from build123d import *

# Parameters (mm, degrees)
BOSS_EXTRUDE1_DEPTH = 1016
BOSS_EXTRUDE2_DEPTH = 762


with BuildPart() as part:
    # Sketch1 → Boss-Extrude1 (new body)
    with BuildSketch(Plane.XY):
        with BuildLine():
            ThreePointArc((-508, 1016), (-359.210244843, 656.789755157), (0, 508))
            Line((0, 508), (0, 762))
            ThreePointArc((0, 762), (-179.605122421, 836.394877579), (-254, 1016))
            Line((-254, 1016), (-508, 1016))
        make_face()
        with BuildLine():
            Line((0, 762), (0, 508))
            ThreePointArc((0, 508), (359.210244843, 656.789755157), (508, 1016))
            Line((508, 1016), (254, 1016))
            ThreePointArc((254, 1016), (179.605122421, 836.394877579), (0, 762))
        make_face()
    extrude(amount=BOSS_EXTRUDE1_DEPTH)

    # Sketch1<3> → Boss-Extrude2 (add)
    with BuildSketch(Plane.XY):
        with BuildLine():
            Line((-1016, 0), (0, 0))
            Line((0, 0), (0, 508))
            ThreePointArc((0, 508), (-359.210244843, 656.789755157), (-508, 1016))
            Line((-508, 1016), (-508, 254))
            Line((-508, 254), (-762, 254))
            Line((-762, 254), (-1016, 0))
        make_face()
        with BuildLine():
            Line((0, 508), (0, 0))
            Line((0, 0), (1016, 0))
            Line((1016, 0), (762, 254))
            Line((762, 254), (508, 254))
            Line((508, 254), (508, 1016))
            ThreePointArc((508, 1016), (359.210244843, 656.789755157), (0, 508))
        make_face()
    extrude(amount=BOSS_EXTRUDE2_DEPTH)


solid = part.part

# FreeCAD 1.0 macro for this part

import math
import FreeCAD as App
import Part
import Sketcher
from FreeCAD import Vector
Q = App.Units.Quantity

doc = App.newDocument("Part")
body = doc.addObject("PartDesign::Body", "Body")

# Sketch on XY plane
sketch1 = body.newObject("Sketcher::SketchObject", "Sketch")
sketch1.AttachmentSupport = (doc.getObject("XY_Plane"), [""])
sketch1.MapMode = "FlatFace"
sketch1.addGeometry(Part.ArcOfCircle(Part.Circle(Vector(0, 1016, 0), Vector(0, 0, 1), 508), math.radians(180), math.radians(270)), False)
sketch1.addGeometry(Part.ArcOfCircle(Part.Circle(Vector(0, 1016, 0), Vector(0, 0, 1), 508), math.radians(-90), math.radians(0)), False)
sketch1.addGeometry(Part.LineSegment(Vector(508, 1016, 0), Vector(254, 1016, 0)), False)
sketch1.addGeometry(Part.ArcOfCircle(Part.Circle(Vector(0, 1016, 0), Vector(0, 0, 1), 254), math.radians(-90), math.radians(0)), False)
sketch1.addGeometry(Part.ArcOfCircle(Part.Circle(Vector(0, 1016, 0), Vector(0, 0, 1), 254), math.radians(-180), math.radians(-90)), False)
sketch1.addGeometry(Part.LineSegment(Vector(-254, 1016, 0), Vector(-508, 1016, 0)), False)
sketch1.addConstraint(Sketcher.Constraint("Coincident", 0, 2, 1, 1))
sketch1.addConstraint(Sketcher.Constraint("Coincident", 1, 2, 2, 1))
sketch1.addConstraint(Sketcher.Constraint("Coincident", 2, 2, 3, 2))
sketch1.addConstraint(Sketcher.Constraint("Tangent", 3, 1, 4, 2))
sketch1.addConstraint(Sketcher.Constraint("Coincident", 4, 1, 5, 1))
sketch1.addConstraint(Sketcher.Constraint("Coincident", 5, 2, 0, 1))
sketch1.addConstraint(Sketcher.Constraint("Horizontal", 2))
sketch1.addConstraint(Sketcher.Constraint("Horizontal", 5))
sketch1.addConstraint(Sketcher.Constraint("Coincident", 1, 3, 0, 3))
sketch1.addConstraint(Sketcher.Constraint("Coincident", 3, 3, 0, 3))
sketch1.addConstraint(Sketcher.Constraint("Equal", 3, 4))
sketch1.addConstraint(Sketcher.Constraint("Symmetric", 2, 2, 4, 1, -2))
sketch1.addConstraint(Sketcher.Constraint("PointOnObject", 0, 2, -2))
sketch1.addConstraint(Sketcher.Constraint("PointOnObject", 3, 1, -2))
sketch1.addConstraint(Sketcher.Constraint("Radius", 0, Q("20 in")))
sketch1.addConstraint(Sketcher.Constraint("Radius", 3, Q("10 in")))
sketch1.addConstraint(Sketcher.Constraint("DistanceY", -1, 1, 0, 3, Q("40 in")))
sketch1.addConstraint(Sketcher.Constraint("DistanceY", -1, 1, 2, 2, Q("40 in")))
pad1 = body.newObject("PartDesign::Pad", "Pad")
pad1.Profile = sketch1
pad1.Length = Q("40 in")

# Sketch on XY plane
sketch2 = body.newObject("Sketcher::SketchObject", "Sketch001")
sketch2.AttachmentSupport = (doc.getObject("XY_Plane"), [""])
sketch2.MapMode = "FlatFace"
sketch2.addGeometry(Part.LineSegment(Vector(-1016, 0, 0), Vector(1016, 0, 0)), False)
sketch2.addGeometry(Part.LineSegment(Vector(1016, 0, 0), Vector(762, 254, 0)), False)
sketch2.addGeometry(Part.LineSegment(Vector(762, 254, 0), Vector(508, 254, 0)), False)
sketch2.addGeometry(Part.LineSegment(Vector(508, 254, 0), Vector(508, 1016, 0)), False)
sketch2.addGeometry(Part.ArcOfCircle(Part.Circle(Vector(0, 1016, 0), Vector(0, 0, 1), 508), math.radians(-90), math.radians(0)), False)
sketch2.addGeometry(Part.ArcOfCircle(Part.Circle(Vector(0, 1016, 0), Vector(0, 0, 1), 508), math.radians(180), math.radians(270)), False)
sketch2.addGeometry(Part.LineSegment(Vector(-508, 1016, 0), Vector(-508, 254, 0)), False)
sketch2.addGeometry(Part.LineSegment(Vector(-508, 254, 0), Vector(-762, 254, 0)), False)
sketch2.addGeometry(Part.LineSegment(Vector(-762, 254, 0), Vector(-1016, 0, 0)), False)
sketch2.addConstraint(Sketcher.Constraint("Coincident", 0, 2, 1, 1))
sketch2.addConstraint(Sketcher.Constraint("Coincident", 1, 2, 2, 1))
sketch2.addConstraint(Sketcher.Constraint("Coincident", 2, 2, 3, 1))
sketch2.addConstraint(Sketcher.Constraint("Tangent", 3, 2, 4, 2))
sketch2.addConstraint(Sketcher.Constraint("Coincident", 4, 1, 5, 2))
sketch2.addConstraint(Sketcher.Constraint("Tangent", 5, 1, 6, 1))
sketch2.addConstraint(Sketcher.Constraint("Coincident", 6, 2, 7, 1))
sketch2.addConstraint(Sketcher.Constraint("Coincident", 7, 2, 8, 1))
sketch2.addConstraint(Sketcher.Constraint("Coincident", 8, 2, 0, 1))
sketch2.addConstraint(Sketcher.Constraint("Horizontal", 0))
sketch2.addConstraint(Sketcher.Constraint("Horizontal", 2))
sketch2.addConstraint(Sketcher.Constraint("Vertical", 3))
sketch2.addConstraint(Sketcher.Constraint("Vertical", 6))
sketch2.addConstraint(Sketcher.Constraint("Horizontal", 7))
sketch2.addConstraint(Sketcher.Constraint("Coincident", 5, 3, 4, 3))
sketch2.addConstraint(Sketcher.Constraint("Symmetric", 0, 2, 8, 2, -1, 1))
sketch2.addConstraint(Sketcher.Constraint("Symmetric", 2, 2, 6, 2, -2))
sketch2.addConstraint(Sketcher.Constraint("PointOnObject", 4, 1, -2))
sketch2.addConstraint(Sketcher.Constraint("Perpendicular", 1, 8))
sketch2.addConstraint(Sketcher.Constraint("Equal", 2, 7))
sketch2.addConstraint(Sketcher.Constraint("Radius", 4, Q("20 in")))
sketch2.addConstraint(Sketcher.Constraint("DistanceX", 0, 1, 0, 2, Q("80 in")))
sketch2.addConstraint(Sketcher.Constraint("DistanceX", 2, 2, 2, 1, Q("10 in")))
sketch2.addConstraint(Sketcher.Constraint("DistanceY", 3, 1, 3, 2, Q("30 in")))
pad2 = body.newObject("PartDesign::Pad", "Pad001")
pad2.Profile = sketch2
pad2.Length = Q("30 in")

doc.recompute()
